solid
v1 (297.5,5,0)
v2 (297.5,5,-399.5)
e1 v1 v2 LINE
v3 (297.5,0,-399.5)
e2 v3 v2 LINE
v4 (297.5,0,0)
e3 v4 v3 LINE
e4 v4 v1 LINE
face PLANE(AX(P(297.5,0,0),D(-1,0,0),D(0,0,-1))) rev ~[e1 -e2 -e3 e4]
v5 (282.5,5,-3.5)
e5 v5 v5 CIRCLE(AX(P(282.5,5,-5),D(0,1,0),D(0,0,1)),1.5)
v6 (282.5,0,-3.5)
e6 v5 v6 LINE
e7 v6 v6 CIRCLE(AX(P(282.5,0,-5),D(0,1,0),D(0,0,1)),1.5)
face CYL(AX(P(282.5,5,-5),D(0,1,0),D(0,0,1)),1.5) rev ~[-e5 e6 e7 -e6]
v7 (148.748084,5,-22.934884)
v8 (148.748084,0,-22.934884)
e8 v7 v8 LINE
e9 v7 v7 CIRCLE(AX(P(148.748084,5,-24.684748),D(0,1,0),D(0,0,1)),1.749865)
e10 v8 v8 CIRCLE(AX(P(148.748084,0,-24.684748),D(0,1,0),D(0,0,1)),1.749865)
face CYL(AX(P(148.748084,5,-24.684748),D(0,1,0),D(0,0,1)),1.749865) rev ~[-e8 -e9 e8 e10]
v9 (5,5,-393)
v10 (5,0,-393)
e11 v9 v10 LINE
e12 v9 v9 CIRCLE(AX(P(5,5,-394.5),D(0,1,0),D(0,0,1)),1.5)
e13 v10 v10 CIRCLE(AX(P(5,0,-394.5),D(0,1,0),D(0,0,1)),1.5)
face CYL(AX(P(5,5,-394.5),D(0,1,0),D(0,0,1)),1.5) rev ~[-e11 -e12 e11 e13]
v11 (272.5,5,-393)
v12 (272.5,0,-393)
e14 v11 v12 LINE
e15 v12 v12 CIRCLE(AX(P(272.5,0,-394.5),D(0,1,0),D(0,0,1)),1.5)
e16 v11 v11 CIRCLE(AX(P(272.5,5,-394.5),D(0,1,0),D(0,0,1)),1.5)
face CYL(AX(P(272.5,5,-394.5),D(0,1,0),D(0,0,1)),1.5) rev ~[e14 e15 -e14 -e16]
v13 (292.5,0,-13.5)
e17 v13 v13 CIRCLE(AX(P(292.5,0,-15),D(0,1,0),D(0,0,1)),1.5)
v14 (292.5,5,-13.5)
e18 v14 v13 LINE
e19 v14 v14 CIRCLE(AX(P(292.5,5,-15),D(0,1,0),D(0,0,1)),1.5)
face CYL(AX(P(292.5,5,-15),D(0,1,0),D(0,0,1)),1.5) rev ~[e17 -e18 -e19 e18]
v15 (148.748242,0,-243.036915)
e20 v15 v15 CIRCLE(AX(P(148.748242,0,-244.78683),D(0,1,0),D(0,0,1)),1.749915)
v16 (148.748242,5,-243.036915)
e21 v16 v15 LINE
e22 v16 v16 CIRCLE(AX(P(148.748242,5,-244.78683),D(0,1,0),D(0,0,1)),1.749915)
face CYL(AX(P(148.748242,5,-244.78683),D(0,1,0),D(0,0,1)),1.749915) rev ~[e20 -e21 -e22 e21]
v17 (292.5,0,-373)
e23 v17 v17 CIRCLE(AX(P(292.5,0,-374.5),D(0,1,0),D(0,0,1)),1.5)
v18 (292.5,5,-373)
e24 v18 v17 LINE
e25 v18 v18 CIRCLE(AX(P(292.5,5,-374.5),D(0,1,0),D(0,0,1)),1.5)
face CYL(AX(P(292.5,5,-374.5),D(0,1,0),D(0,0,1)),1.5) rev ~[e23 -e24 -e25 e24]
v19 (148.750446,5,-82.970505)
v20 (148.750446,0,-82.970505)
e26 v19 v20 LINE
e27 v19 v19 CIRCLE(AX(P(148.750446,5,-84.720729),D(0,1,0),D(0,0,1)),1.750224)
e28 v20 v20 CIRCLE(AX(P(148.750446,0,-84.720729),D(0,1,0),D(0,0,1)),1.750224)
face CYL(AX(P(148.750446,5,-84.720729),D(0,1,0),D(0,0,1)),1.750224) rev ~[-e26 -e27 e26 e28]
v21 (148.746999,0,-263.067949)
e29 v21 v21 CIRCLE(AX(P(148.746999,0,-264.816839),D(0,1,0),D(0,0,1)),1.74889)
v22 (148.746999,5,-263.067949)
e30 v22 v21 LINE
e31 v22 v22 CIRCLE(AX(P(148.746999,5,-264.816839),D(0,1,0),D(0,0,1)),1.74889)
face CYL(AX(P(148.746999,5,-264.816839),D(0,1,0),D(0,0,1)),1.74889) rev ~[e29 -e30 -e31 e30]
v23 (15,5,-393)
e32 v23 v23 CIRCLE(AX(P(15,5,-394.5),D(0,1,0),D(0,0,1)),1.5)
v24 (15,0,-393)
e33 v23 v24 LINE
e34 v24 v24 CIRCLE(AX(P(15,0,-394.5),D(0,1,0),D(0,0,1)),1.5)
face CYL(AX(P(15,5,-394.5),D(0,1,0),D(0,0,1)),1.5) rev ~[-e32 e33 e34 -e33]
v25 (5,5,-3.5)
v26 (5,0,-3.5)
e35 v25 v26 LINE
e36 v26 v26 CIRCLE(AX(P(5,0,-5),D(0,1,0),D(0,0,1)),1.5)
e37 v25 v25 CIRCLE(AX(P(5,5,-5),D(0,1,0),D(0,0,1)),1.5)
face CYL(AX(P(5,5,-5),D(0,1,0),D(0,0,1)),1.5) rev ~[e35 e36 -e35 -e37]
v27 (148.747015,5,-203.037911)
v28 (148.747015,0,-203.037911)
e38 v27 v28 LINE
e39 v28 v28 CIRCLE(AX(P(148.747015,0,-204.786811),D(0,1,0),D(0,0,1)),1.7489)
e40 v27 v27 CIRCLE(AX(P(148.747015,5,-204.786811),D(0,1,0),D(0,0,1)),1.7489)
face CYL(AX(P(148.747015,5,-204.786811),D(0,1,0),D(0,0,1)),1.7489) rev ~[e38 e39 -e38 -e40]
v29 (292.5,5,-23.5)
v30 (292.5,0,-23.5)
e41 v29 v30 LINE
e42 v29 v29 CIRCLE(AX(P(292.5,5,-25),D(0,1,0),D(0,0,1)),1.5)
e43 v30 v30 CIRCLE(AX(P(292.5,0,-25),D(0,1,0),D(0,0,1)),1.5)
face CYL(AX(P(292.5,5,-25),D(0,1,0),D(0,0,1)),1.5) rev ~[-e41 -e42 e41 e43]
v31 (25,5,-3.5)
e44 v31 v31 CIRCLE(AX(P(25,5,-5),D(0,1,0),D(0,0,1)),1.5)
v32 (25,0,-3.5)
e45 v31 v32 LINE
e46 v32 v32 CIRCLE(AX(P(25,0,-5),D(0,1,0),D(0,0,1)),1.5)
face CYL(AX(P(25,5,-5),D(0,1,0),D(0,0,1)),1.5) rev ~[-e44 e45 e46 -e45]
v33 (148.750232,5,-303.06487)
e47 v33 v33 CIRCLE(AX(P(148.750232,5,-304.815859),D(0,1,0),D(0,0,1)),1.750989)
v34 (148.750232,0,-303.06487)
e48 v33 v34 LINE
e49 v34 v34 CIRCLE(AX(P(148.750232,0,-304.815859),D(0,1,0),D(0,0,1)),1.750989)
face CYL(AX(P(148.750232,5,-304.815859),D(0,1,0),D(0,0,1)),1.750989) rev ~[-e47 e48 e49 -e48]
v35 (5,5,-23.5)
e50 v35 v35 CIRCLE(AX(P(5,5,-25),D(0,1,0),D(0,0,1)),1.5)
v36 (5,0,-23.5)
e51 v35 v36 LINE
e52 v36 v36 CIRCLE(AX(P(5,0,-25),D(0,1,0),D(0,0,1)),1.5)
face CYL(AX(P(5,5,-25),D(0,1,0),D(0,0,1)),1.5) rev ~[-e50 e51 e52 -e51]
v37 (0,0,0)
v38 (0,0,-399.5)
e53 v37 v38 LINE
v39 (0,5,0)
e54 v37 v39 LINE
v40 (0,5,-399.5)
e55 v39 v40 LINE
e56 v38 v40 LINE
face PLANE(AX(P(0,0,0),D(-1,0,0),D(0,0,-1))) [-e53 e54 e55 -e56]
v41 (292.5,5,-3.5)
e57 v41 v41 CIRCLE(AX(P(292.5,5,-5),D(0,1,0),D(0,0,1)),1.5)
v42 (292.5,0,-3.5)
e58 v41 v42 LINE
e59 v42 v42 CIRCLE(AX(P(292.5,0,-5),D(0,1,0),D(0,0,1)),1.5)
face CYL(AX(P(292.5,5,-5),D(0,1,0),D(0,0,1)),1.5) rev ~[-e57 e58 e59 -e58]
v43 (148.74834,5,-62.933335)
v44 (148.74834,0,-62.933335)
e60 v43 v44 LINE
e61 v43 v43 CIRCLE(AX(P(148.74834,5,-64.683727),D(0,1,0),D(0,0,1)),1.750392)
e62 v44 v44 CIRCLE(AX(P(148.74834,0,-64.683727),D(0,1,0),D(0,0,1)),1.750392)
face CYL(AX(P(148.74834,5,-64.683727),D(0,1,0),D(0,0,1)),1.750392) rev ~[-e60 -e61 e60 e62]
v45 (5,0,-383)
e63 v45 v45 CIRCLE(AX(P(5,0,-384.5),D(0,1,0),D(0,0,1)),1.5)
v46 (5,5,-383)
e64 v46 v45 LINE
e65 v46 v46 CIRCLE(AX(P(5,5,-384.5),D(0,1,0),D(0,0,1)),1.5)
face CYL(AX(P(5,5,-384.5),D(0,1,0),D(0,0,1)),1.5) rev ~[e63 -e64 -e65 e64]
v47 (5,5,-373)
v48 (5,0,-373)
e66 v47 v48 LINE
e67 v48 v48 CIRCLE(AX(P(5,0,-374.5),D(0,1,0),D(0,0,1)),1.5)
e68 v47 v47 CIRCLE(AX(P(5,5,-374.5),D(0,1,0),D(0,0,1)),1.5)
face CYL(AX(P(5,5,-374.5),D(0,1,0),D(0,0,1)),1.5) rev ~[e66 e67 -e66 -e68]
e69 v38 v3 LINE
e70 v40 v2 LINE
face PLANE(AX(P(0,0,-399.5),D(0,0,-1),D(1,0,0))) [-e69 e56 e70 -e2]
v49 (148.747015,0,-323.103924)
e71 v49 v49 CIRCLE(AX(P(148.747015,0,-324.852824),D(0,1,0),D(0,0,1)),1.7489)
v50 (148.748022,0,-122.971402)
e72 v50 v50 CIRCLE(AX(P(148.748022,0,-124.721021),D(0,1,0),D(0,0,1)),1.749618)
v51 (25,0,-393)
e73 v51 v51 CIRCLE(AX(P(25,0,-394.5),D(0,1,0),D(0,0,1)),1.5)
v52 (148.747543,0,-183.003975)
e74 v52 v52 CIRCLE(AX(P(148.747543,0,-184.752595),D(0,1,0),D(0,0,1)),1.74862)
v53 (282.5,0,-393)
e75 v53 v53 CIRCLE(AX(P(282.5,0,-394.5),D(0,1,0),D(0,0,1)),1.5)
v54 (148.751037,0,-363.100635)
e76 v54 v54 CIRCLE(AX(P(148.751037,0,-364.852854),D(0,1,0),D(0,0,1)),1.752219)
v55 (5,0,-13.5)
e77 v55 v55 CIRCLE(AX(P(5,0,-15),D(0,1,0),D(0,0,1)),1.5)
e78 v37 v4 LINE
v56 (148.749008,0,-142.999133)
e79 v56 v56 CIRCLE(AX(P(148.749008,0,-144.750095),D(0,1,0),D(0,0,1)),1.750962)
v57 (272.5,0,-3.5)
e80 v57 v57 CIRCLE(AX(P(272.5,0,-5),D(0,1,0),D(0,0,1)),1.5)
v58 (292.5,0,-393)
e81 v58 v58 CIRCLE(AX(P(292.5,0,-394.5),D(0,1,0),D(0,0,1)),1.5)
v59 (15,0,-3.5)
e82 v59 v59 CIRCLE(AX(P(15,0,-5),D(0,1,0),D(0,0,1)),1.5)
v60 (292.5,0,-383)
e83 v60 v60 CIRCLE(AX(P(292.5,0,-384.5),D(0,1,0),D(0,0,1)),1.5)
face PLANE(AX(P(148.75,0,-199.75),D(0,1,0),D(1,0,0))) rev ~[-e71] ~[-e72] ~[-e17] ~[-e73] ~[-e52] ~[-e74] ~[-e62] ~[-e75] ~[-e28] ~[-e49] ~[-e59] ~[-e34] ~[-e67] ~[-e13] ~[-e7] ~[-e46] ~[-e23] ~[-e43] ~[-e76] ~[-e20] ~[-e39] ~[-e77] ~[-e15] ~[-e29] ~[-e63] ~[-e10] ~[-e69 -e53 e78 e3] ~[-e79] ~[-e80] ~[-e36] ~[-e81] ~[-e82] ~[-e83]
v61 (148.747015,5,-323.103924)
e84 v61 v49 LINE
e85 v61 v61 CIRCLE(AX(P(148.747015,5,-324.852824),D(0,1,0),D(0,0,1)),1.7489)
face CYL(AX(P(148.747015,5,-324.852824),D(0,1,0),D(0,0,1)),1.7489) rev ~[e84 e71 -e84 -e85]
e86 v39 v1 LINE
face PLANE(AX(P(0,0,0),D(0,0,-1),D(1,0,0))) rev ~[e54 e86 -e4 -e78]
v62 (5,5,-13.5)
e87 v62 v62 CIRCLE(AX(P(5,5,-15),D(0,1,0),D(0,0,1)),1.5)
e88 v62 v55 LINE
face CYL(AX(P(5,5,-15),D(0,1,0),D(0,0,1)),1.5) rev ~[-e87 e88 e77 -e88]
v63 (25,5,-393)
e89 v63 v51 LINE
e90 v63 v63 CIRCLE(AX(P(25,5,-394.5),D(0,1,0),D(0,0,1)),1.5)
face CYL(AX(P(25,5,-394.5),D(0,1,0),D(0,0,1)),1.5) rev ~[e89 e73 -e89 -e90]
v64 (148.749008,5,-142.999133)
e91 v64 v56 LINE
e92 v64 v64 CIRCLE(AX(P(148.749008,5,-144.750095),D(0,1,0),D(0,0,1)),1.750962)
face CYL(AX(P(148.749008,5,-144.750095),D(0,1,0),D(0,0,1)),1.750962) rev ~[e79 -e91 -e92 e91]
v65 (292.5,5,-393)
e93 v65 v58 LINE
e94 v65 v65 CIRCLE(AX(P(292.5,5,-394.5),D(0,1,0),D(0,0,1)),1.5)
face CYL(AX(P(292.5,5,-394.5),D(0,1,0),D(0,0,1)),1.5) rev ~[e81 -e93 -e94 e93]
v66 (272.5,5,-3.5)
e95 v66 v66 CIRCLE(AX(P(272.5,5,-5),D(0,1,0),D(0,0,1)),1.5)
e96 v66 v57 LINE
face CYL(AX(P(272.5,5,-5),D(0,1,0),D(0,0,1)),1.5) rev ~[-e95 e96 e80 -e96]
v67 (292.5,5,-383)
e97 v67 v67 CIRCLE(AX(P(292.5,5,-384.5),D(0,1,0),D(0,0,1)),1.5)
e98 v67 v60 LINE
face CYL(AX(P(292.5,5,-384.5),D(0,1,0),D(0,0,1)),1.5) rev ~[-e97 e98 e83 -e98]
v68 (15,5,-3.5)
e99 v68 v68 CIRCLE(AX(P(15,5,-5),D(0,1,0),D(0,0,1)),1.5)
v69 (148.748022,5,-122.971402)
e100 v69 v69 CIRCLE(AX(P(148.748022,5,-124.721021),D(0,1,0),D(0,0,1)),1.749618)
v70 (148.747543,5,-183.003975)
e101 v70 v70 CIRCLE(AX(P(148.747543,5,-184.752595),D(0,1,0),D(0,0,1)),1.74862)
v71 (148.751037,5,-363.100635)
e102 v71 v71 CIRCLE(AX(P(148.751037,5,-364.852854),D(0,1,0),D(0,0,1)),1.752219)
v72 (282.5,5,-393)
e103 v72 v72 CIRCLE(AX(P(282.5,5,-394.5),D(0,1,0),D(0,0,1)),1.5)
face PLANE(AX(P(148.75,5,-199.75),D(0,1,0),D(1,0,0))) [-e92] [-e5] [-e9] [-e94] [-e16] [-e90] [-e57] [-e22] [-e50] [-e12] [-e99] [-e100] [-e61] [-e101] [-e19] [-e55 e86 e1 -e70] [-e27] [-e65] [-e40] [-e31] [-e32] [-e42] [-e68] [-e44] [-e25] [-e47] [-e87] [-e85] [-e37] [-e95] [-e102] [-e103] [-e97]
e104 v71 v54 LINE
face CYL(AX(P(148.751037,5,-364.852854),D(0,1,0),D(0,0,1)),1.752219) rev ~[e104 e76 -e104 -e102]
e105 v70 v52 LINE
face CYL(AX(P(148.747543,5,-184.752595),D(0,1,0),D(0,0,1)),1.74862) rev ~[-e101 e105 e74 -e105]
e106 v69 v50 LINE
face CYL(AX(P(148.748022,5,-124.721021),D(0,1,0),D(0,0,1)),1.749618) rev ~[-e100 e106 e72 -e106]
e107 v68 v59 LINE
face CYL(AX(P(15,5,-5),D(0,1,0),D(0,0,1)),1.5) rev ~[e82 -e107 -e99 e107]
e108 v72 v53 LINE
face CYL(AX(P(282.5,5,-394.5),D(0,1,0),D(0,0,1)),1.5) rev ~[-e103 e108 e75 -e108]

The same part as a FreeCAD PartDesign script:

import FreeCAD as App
import Part
import Sketcher
Q = App.Units.Quantity


def add_polygon(sketch, points):
    """Adds a closed chain of lines whose ends are joined by coincident constraints."""
    first, n = sketch.GeometryCount, len(points)
    for a, b in zip(points, points[1:] + points[:1]):
        sketch.addGeometry(Part.LineSegment(App.Vector(*a, 0), App.Vector(*b, 0)), False)
    for i in range(n):
        sketch.addConstraint(Sketcher.Constraint("Coincident", first + i, 2, first + (i + 1) % n, 1))

doc = App.newDocument("Part")
body = doc.addObject("PartDesign::Body", "Body")

# Sketch on XZ plane
sketch1 = body.newObject("Sketcher::SketchObject", "Sketch")
sketch1.AttachmentSupport = (doc.getObject("XZ_Plane"), [""])
sketch1.MapMode = "FlatFace"
add_polygon(sketch1, [(0, -400), (0, 0), (298, 0), (298, -400)])  # lines 0-3
sketch1.addConstraint(Sketcher.Constraint("Vertical", 0))
sketch1.addConstraint(Sketcher.Constraint("Horizontal", 1))
sketch1.addConstraint(Sketcher.Constraint("Vertical", 2))
sketch1.addConstraint(Sketcher.Constraint("Horizontal", 3))
sketch1.addConstraint(Sketcher.Constraint("Coincident", 0, 2, -1, 1))
sketch1.addConstraint(Sketcher.Constraint("DistanceX", 1, 1, 1, 2, Q("297.5 mm")))
sketch1.addConstraint(Sketcher.Constraint("DistanceY", 0, 1, 0, 2, Q("399.5 mm")))
pad1 = body.newObject("PartDesign::Pad", "Pad")
pad1.Profile = sketch1
pad1.Length = 5
pad1.Reversed = True

# Sketch on XZ plane
sketch2 = body.newObject("Sketcher::SketchObject", "Sketch001")
sketch2.AttachmentSupport = (doc.getObject("XZ_Plane"), [""])
sketch2.MapMode = "FlatFace"
sketch2.AttachmentOffset = App.Placement(App.Vector(0, 0, -5), App.Rotation())
sketch2.addGeometry(Part.Circle(App.Vector(148.7, -24.7, 0), App.Vector(0, 0, 1), 1.7), False)
sketch2.addGeometry(Part.Circle(App.Vector(148.7, -64.7, 0), App.Vector(0, 0, 1), 1.8), False)
sketch2.addGeometry(Part.Circle(App.Vector(148.8, -84.7, 0), App.Vector(0, 0, 1), 1.8), False)
sketch2.addGeometry(Part.Circle(App.Vector(148.7, -124.7, 0), App.Vector(0, 0, 1), 1.7), False)
sketch2.addGeometry(Part.Circle(App.Vector(148.7, -144.8, 0), App.Vector(0, 0, 1), 1.8), False)
sketch2.addGeometry(Part.Circle(App.Vector(148.7, -184.8, 0), App.Vector(0, 0, 1), 1.7), False)
sketch2.addGeometry(Part.Circle(App.Vector(148.7, -204.8, 0), App.Vector(0, 0, 1), 1.7), False)
sketch2.addGeometry(Part.Circle(App.Vector(148.7, -244.8, 0), App.Vector(0, 0, 1), 1.7), False)
sketch2.addGeometry(Part.Circle(App.Vector(148.7, -264.8, 0), App.Vector(0, 0, 1), 1.7), False)
sketch2.addGeometry(Part.Circle(App.Vector(148.8, -304.8, 0), App.Vector(0, 0, 1), 1.8), False)
sketch2.addGeometry(Part.Circle(App.Vector(148.7, -324.9, 0), App.Vector(0, 0, 1), 1.7), False)
sketch2.addGeometry(Part.Circle(App.Vector(148.8, -364.9, 0), App.Vector(0, 0, 1), 1.8), False)
sketch2.addConstraint(Sketcher.Constraint("Equal", 6, 10))
sketch2.addConstraint(Sketcher.Constraint("Vertical", 6, 3, 10, 3))
sketch2.addConstraint(Sketcher.Constraint("Diameter", 6, Q("3.4978 mm")))
sketch2.addConstraint(Sketcher.Constraint("Diameter", 0, Q("3.499729 mm")))
sketch2.addConstraint(Sketcher.Constraint("Diameter", 2, Q("3.500448 mm")))
sketch2.addConstraint(Sketcher.Constraint("Diameter", 5, Q("3.497241 mm")))
sketch2.addConstraint(Sketcher.Constraint("Diameter", 7, Q("3.49983 mm")))
sketch2.addConstraint(Sketcher.Constraint("Diameter", 8, Q("3.497781 mm")))
sketch2.addConstraint(Sketcher.Constraint("Diameter", 11, Q("3.504438 mm")))
sketch2.addConstraint(Sketcher.Constraint("Diameter", 1, Q("3.500784 mm")))
sketch2.addConstraint(Sketcher.Constraint("Diameter", 3, Q("3.499237 mm")))
sketch2.addConstraint(Sketcher.Constraint("Diameter", 4, Q("3.501924 mm")))
sketch2.addConstraint(Sketcher.Constraint("Diameter", 9, Q("3.501977 mm")))
sketch2.addConstraint(Sketcher.Constraint("DistanceX", -1, 1, 8, 3, Q("148.746999 mm")))
sketch2.addConstraint(Sketcher.Constraint("DistanceY", 5, 3, 4, 3, Q("40.0025 mm")))
sketch2.addConstraint(Sketcher.Constraint("DistanceX", 5, 3, 7, 3, Q("0.000699 mm")))
sketch2.addConstraint(Sketcher.Constraint("DistanceY", 7, 3, 2, 3, Q("160.066101 mm")))
sketch2.addConstraint(Sketcher.Constraint("DistanceY", 0, 3, -1, 1, Q("24.684748 mm")))
sketch2.addConstraint(Sketcher.Constraint("DistanceX", -1, 1, 1, 3, Q("148.74834 mm")))
sketch2.addConstraint(Sketcher.Constraint("DistanceY", 2, 3, -1, 1, Q("84.720729 mm")))
sketch2.addConstraint(Sketcher.Constraint("DistanceX", -1, 1, 3, 3, Q("148.748022 mm")))
sketch2.addConstraint(Sketcher.Constraint("DistanceY", 3, 3, -1, 1, Q("124.721021 mm")))
sketch2.addConstraint(Sketcher.Constraint("DistanceY", 6, 3, -1, 1, Q("204.786811 mm")))
sketch2.addConstraint(Sketcher.Constraint("DistanceY", 8, 3, -1, 1, Q("264.816839 mm")))
sketch2.addConstraint(Sketcher.Constraint("DistanceX", -1, 1, 9, 3, Q("148.750232 mm")))
sketch2.addConstraint(Sketcher.Constraint("DistanceY", 9, 3, -1, 1, Q("304.815859 mm")))
sketch2.addConstraint(Sketcher.Constraint("DistanceY", 1, 3, 0, 3, Q("39.998978 mm")))
sketch2.addConstraint(Sketcher.Constraint("DistanceX", 4, 3, 2, 3, Q("0.001439 mm")))
sketch2.addConstraint(Sketcher.Constraint("DistanceY", 4, 3, 1, 3, Q("80.066368 mm")))
sketch2.addConstraint(Sketcher.Constraint("DistanceX", 5, 3, 3, 3, Q("0.000479 mm")))
sketch2.addConstraint(Sketcher.Constraint("DistanceX", 5, 3, 0, 3, Q("0.00054 mm")))
sketch2.addConstraint(Sketcher.Constraint("DistanceX", 6, 3, 5, 3, Q("0.000528 mm")))
sketch2.addConstraint(Sketcher.Constraint("DistanceX", 6, 3, 2, 3, Q("0.003431 mm")))
sketch2.addConstraint(Sketcher.Constraint("DistanceY", 10, 3, 5, 3, Q("140.100229 mm")))
sketch2.addConstraint(Sketcher.Constraint("DistanceX", 10, 3, 11, 3, Q("0.004022 mm")))
sketch2.addConstraint(Sketcher.Constraint("DistanceY", 11, 3, 10, 3, Q("40.00003 mm")))
pocket1 = body.newObject("PartDesign::Pocket", "Pocket")
pocket1.Profile = sketch2
pocket1.Length = 10
pocket1.Reversed = True

# Sketch on XZ plane
sketch3 = body.newObject("Sketcher::SketchObject", "Sketch002")
sketch3.AttachmentSupport = (doc.getObject("XZ_Plane"), [""])
sketch3.MapMode = "FlatFace"
sketch3.AttachmentOffset = App.Placement(App.Vector(0, 0, -5), App.Rotation())
sketch3.addGeometry(Part.Circle(App.Vector(272.5, -5, 0), App.Vector(0, 0, 1), 1.5), False)
sketch3.addGeometry(Part.Circle(App.Vector(282.5, -5, 0), App.Vector(0, 0, 1), 1.5), False)
sketch3.addGeometry(Part.Circle(App.Vector(292.5, -5, 0), App.Vector(0, 0, 1), 1.5), False)
sketch3.addGeometry(Part.Circle(App.Vector(292.5, -15, 0), App.Vector(0, 0, 1), 1.5), False)
sketch3.addGeometry(Part.Circle(App.Vector(292.5, -25, 0), App.Vector(0, 0, 1), 1.5), False)
sketch3.addGeometry(Part.Circle(App.Vector(292.5, -374.5, 0), App.Vector(0, 0, 1), 1.5), False)
sketch3.addGeometry(Part.Circle(App.Vector(292.5, -384.5, 0), App.Vector(0, 0, 1), 1.5), False)
sketch3.addGeometry(Part.Circle(App.Vector(292.5, -394.5, 0), App.Vector(0, 0, 1), 1.5), False)
sketch3.addGeometry(Part.Circle(App.Vector(282.5, -394.5, 0), App.Vector(0, 0, 1), 1.5), False)
sketch3.addGeometry(Part.Circle(App.Vector(272.5, -394.5, 0), App.Vector(0, 0, 1), 1.5), False)
sketch3.addGeometry(Part.Circle(App.Vector(5, -374.5, 0), App.Vector(0, 0, 1), 1.5), False)
sketch3.addGeometry(Part.Circle(App.Vector(5, -384.5, 0), App.Vector(0, 0, 1), 1.5), False)
sketch3.addGeometry(Part.Circle(App.Vector(5, -394.5, 0), App.Vector(0, 0, 1), 1.5), False)
sketch3.addGeometry(Part.Circle(App.Vector(15, -394.5, 0), App.Vector(0, 0, 1), 1.5), False)
sketch3.addGeometry(Part.Circle(App.Vector(25, -394.5, 0), App.Vector(0, 0, 1), 1.5), False)
sketch3.addGeometry(Part.Circle(App.Vector(25, -5, 0), App.Vector(0, 0, 1), 1.5), False)
sketch3.addGeometry(Part.Circle(App.Vector(15, -5, 0), App.Vector(0, 0, 1), 1.5), False)
sketch3.addGeometry(Part.Circle(App.Vector(5, -5, 0), App.Vector(0, 0, 1), 1.5), False)
sketch3.addGeometry(Part.Circle(App.Vector(5, -15, 0), App.Vector(0, 0, 1), 1.5), False)
sketch3.addGeometry(Part.Circle(App.Vector(5, -25, 0), App.Vector(0, 0, 1), 1.5), False)
sketch3.addConstraint(Sketcher.Constraint("Equal", 0, 1))
sketch3.addConstraint(Sketcher.Constraint("Equal", 1, 2))
sketch3.addConstraint(Sketcher.Constraint("Equal", 2, 3))
sketch3.addConstraint(Sketcher.Constraint("Equal", 3, 4))
sketch3.addConstraint(Sketcher.Constraint("Equal", 4, 5))
sketch3.addConstraint(Sketcher.Constraint("Equal", 5, 6))
sketch3.addConstraint(Sketcher.Constraint("Equal", 6, 7))
sketch3.addConstraint(Sketcher.Constraint("Equal", 7, 8))
sketch3.addConstraint(Sketcher.Constraint("Equal", 8, 9))
sketch3.addConstraint(Sketcher.Constraint("Equal", 9, 10))
sketch3.addConstraint(Sketcher.Constraint("Equal", 10, 11))
sketch3.addConstraint(Sketcher.Constraint("Equal", 11, 12))
sketch3.addConstraint(Sketcher.Constraint("Equal", 12, 13))
sketch3.addConstraint(Sketcher.Constraint("Equal", 13, 14))
sketch3.addConstraint(Sketcher.Constraint("Equal", 14, 15))
sketch3.addConstraint(Sketcher.Constraint("Equal", 15, 16))
sketch3.addConstraint(Sketcher.Constraint("Equal", 16, 17))
sketch3.addConstraint(Sketcher.Constraint("Equal", 17, 18))
sketch3.addConstraint(Sketcher.Constraint("Equal", 18, 19))
sketch3.addConstraint(Sketcher.Constraint("Horizontal", 0, 3, 1, 3))
sketch3.addConstraint(Sketcher.Constraint("Horizontal", 1, 3, 2, 3))
sketch3.addConstraint(Sketcher.Constraint("Horizontal", 7, 3, 8, 3))
sketch3.addConstraint(Sketcher.Constraint("Horizontal", 8, 3, 9, 3))
sketch3.addConstraint(Sketcher.Constraint("Horizontal", 5, 3, 10, 3))
sketch3.addConstraint(Sketcher.Constraint("Horizontal", 6, 3, 11, 3))
sketch3.addConstraint(Sketcher.Constraint("Horizontal", 9, 3, 12, 3))
sketch3.addConstraint(Sketcher.Constraint("Horizontal", 12, 3, 13, 3))
sketch3.addConstraint(Sketcher.Constraint("Horizontal", 13, 3, 14, 3))
sketch3.addConstraint(Sketcher.Constraint("Horizontal", 2, 3, 15, 3))
sketch3.addConstraint(Sketcher.Constraint("Horizontal", 15, 3, 16, 3))
sketch3.addConstraint(Sketcher.Constraint("Horizontal", 16, 3, 17, 3))
sketch3.addConstraint(Sketcher.Constraint("Horizontal", 3, 3, 18, 3))
sketch3.addConstraint(Sketcher.Constraint("Horizontal", 4, 3, 19, 3))
sketch3.addConstraint(Sketcher.Constraint("Vertical", 2, 3, 3, 3))
sketch3.addConstraint(Sketcher.Constraint("Vertical", 3, 3, 4, 3))
sketch3.addConstraint(Sketcher.Constraint("Vertical", 4, 3, 5, 3))
sketch3.addConstraint(Sketcher.Constraint("Vertical", 5, 3, 6, 3))
sketch3.addConstraint(Sketcher.Constraint("Vertical", 6, 3, 7, 3))
sketch3.addConstraint(Sketcher.Constraint("Vertical", 1, 3, 8, 3))
sketch3.addConstraint(Sketcher.Constraint("Vertical", 0, 3, 9, 3))
sketch3.addConstraint(Sketcher.Constraint("Vertical", 10, 3, 11, 3))
sketch3.addConstraint(Sketcher.Constraint("Vertical", 11, 3, 12, 3))
sketch3.addConstraint(Sketcher.Constraint("Vertical", 14, 3, 15, 3))
sketch3.addConstraint(Sketcher.Constraint("Vertical", 13, 3, 16, 3))
sketch3.addConstraint(Sketcher.Constraint("Vertical", 12, 3, 17, 3))
sketch3.addConstraint(Sketcher.Constraint("Vertical", 17, 3, 18, 3))
sketch3.addConstraint(Sketcher.Constraint("Vertical", 18, 3, 19, 3))
sketch3.addConstraint(Sketcher.Constraint("Diameter", 0, Q("3 mm")))
sketch3.addConstraint(Sketcher.Constraint("DistanceY", 0, 3, -1, 1, Q("5 mm")))
sketch3.addConstraint(Sketcher.Constraint("DistanceY", 3, 3, -1, 1, Q("15 mm")))
sketch3.addConstraint(Sketcher.Constraint("DistanceY", 4, 3, -1, 1, Q("25 mm")))
sketch3.addConstraint(Sketcher.Constraint("DistanceX", -1, 1, 10, 3, Q("5 mm")))
sketch3.addConstraint(Sketcher.Constraint("DistanceX", -1, 1, 13, 3, Q("15 mm")))
sketch3.addConstraint(Sketcher.Constraint("DistanceX", -1, 1, 14, 3, Q("25 mm")))
sketch3.addConstraint(Sketcher.Constraint("DistanceX", 0, 3, 1, 3, Q("10 mm")))
sketch3.addConstraint(Sketcher.Constraint("DistanceX", 1, 3, 2, 3, Q("10 mm")))
sketch3.addConstraint(Sketcher.Constraint("DistanceY", 6, 3, 5, 3, Q("10 mm")))
sketch3.addConstraint(Sketcher.Constraint("DistanceY", 7, 3, 6, 3, Q("10 mm")))
sketch3.addConstraint(Sketcher.Constraint("DistanceX", -1, 1, 0, 3, Q("272.5 mm")))
sketch3.addConstraint(Sketcher.Constraint("DistanceY", 5, 3, -1, 1, Q("374.5 mm")))
pocket2 = body.newObject("PartDesign::Pocket", "Pocket001")
pocket2.Profile = sketch3
pocket2.Length = 10
pocket2.Reversed = True

doc.recompute()
